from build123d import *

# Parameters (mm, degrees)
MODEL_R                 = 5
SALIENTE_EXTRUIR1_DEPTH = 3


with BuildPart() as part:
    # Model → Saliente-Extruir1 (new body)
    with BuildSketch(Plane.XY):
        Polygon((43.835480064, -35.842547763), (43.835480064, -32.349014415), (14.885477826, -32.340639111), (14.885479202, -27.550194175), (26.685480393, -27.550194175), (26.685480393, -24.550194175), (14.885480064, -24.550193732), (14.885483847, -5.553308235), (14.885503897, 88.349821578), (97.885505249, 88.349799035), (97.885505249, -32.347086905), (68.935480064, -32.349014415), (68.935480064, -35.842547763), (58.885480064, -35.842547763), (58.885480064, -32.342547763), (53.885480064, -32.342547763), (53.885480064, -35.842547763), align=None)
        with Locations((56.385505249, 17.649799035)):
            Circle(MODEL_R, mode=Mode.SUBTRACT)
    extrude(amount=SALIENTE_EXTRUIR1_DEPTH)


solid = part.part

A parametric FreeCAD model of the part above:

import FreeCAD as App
import Part
import Sketcher
from FreeCAD import Vector
Q = App.Units.Quantity

doc = App.newDocument("Part")
params = doc.addObject("Spreadsheet::Sheet", "Params")
for row, (alias, value) in enumerate([
    ("sketch1_diameter", "10 mm"),
    ("sketch1_width", "5 mm"),
    ("sketch1_height", "3 mm"),
    ("sketch1_length", "83.000001 mm"),
    ("sketch1_width2", "11.8 mm"),
    ("pad1_length", "3 mm"),
], start=1):
    params.set(f"A{row}", alias)
    params.set(f"B{row}", "=" + value)
    params.setAlias(f"B{row}", alias)

body = doc.addObject("PartDesign::Body", "Body")

sketch1 = doc.addObject("Sketcher::SketchObject", "Sketch")
body.addObject(sketch1)
sketch1.AttachmentSupport = (doc.XY_Plane, [""])
sketch1.MapMode = "FlatFace"
sketch1.addGeometry(Part.LineSegment(Vector(43.8, -32.3, 0), Vector(43.8, -35.8, 0)), False)
sketch1.addGeometry(Part.LineSegment(Vector(43.8, -35.8, 0), Vector(53.9, -35.8, 0)), False)
sketch1.addGeometry(Part.LineSegment(Vector(53.9, -35.8, 0), Vector(53.9, -32.3, 0)), False)
sketch1.addGeometry(Part.LineSegment(Vector(53.9, -32.3, 0), Vector(58.9, -32.3, 0)), False)
sketch1.addGeometry(Part.LineSegment(Vector(58.9, -32.3, 0), Vector(58.9, -35.8, 0)), False)
sketch1.addGeometry(Part.LineSegment(Vector(58.9, -35.8, 0), Vector(68.9, -35.8, 0)), False)
sketch1.addGeometry(Part.LineSegment(Vector(68.9, -35.8, 0), Vector(68.9, -32.3, 0)), False)
sketch1.addGeometry(Part.LineSegment(Vector(68.9, -32.3, 0), Vector(97.9, -32.3, 0)), False)
sketch1.addGeometry(Part.LineSegment(Vector(97.9, -32.3, 0), Vector(97.9, 88.3, 0)), False)
sketch1.addGeometry(Part.LineSegment(Vector(97.9, 88.3, 0), Vector(14.9, 88.3, 0)), False)
sketch1.addGeometry(Part.LineSegment(Vector(14.9, 88.3, 0), Vector(14.9, -5.6, 0)), False)
sketch1.addGeometry(Part.LineSegment(Vector(14.9, -5.6, 0), Vector(14.9, -24.6, 0)), False)
sketch1.addGeometry(Part.LineSegment(Vector(14.9, -24.6, 0), Vector(26.7, -24.6, 0)), False)
sketch1.addGeometry(Part.LineSegment(Vector(26.7, -24.6, 0), Vector(26.7, -27.6, 0)), False)
sketch1.addGeometry(Part.LineSegment(Vector(26.7, -27.6, 0), Vector(14.9, -27.6, 0)), False)
sketch1.addGeometry(Part.LineSegment(Vector(14.9, -27.6, 0), Vector(14.9, -32.3, 0)), False)
sketch1.addGeometry(Part.LineSegment(Vector(14.9, -32.3, 0), Vector(43.8, -32.3, 0)), False)
sketch1.addGeometry(Part.Circle(Vector(56.4, 17.6, 0), Vector(0, 0, 1), 5), False)
sketch1.addConstraint(Sketcher.Constraint("Coincident", 0, 2, 1, 1))
sketch1.addConstraint(Sketcher.Constraint("Coincident", 1, 2, 2, 1))
sketch1.addConstraint(Sketcher.Constraint("Coincident", 2, 2, 3, 1))
sketch1.addConstraint(Sketcher.Constraint("Coincident", 3, 2, 4, 1))
sketch1.addConstraint(Sketcher.Constraint("Coincident", 4, 2, 5, 1))
sketch1.addConstraint(Sketcher.Constraint("Coincident", 5, 2, 6, 1))
sketch1.addConstraint(Sketcher.Constraint("Coincident", 6, 2, 7, 1))
sketch1.addConstraint(Sketcher.Constraint("Coincident", 7, 2, 8, 1))
sketch1.addConstraint(Sketcher.Constraint("Coincident", 8, 2, 9, 1))
sketch1.addConstraint(Sketcher.Constraint("Coincident", 9, 2, 10, 1))
sketch1.addConstraint(Sketcher.Constraint("Coincident", 10, 2, 11, 1))
sketch1.addConstraint(Sketcher.Constraint("Coincident", 11, 2, 12, 1))
sketch1.addConstraint(Sketcher.Constraint("Coincident", 12, 2, 13, 1))
sketch1.addConstraint(Sketcher.Constraint("Coincident", 13, 2, 14, 1))
sketch1.addConstraint(Sketcher.Constraint("Coincident", 14, 2, 15, 1))
sketch1.addConstraint(Sketcher.Constraint("Coincident", 15, 2, 16, 1))
sketch1.addConstraint(Sketcher.Constraint("Coincident", 16, 2, 0, 1))
sketch1.addConstraint(Sketcher.Constraint("Vertical", 0))
sketch1.addConstraint(Sketcher.Constraint("Horizontal", 1))
sketch1.addConstraint(Sketcher.Constraint("Vertical", 2))
sketch1.addConstraint(Sketcher.Constraint("Horizontal", 3))
sketch1.addConstraint(Sketcher.Constraint("Vertical", 4))
sketch1.addConstraint(Sketcher.Constraint("Horizontal", 5))
sketch1.addConstraint(Sketcher.Constraint("Vertical", 6))
sketch1.addConstraint(Sketcher.Constraint("Vertical", 8))
sketch1.addConstraint(Sketcher.Constraint("Horizontal", 12))
sketch1.addConstraint(Sketcher.Constraint("Vertical", 13))
sketch1.addConstraint(Sketcher.Constraint("Horizontal", 14))
sketch1.addConstraint(Sketcher.Constraint("Vertical", 15))
sketch1.addConstraint(Sketcher.Constraint("Perpendicular", 9, 10))
sketch1.addConstraint(Sketcher.Constraint("Parallel", 10, 11))
sketch1.addConstraint(Sketcher.Constraint("Horizontal", 1, 2, 4, 2))
sketch1.addConstraint(Sketcher.Constraint("Horizontal", 6, 2, 16, 2))
sketch1.addConstraint(Sketcher.Constraint("Vertical", 11, 2, 14, 2))
sketch1.addConstraint(Sketcher.Constraint("Equal", 1, 5))
sketch1.addConstraint(Sketcher.Constraint("Diameter", 17, Q("10 mm")))
sketch1.addConstraint(Sketcher.Constraint("DistanceX", 3, 1, 3, 2, Q("5 mm")))
sketch1.addConstraint(Sketcher.Constraint("DistanceY", 13, 2, 13, 1, Q("3 mm")))
sketch1.addConstraint(Sketcher.Constraint("Angle", 9, Q("179.999984 deg")))
sketch1.addConstraint(Sketcher.Constraint("Distance", 9, Q("83.000001 mm")))
sketch1.addConstraint(Sketcher.Constraint("DistanceX", 12, 1, 12, 2, Q("11.8 mm")))
sketch1.addConstraint(Sketcher.Constraint("DistanceY", 2, 1, 2, 2, Q("3.5 mm")))
sketch1.addConstraint(Sketcher.Constraint("DistanceX", 11, 2, 2, 2, Q("39 mm")))
sketch1.addConstraint(Sketcher.Constraint("DistanceX", 1, 1, 1, 2, Q("10.05 mm")))
sketch1.addConstraint(Sketcher.Constraint("DistanceX", 17, 3, 8, 2, Q("41.5 mm")))
sketch1.addConstraint(Sketcher.Constraint("DistanceY", 17, 3, 8, 2, Q("70.7 mm")))
sketch1.addConstraint(Sketcher.Constraint("DistanceY", -1, 1, 17, 3, Q("17.649799 mm")))
sketch1.addConstraint(Sketcher.Constraint("Distance", 10, Q("93.90313 mm")))
sketch1.addConstraint(Sketcher.Constraint("DistanceY", 0, 2, 0, 1, Q("3.493533 mm")))
sketch1.addConstraint(Sketcher.Constraint("DistanceY", 8, 1, 8, 2, Q("120.696886 mm")))
sketch1.addConstraint(Sketcher.Constraint("DistanceY", 15, 2, 15, 1, Q("4.790445 mm")))
sketch1.addConstraint(Sketcher.Constraint("DistanceX", -1, 1, 0, 2, Q("43.83548 mm")))
sketch1.addConstraint(Sketcher.Constraint("DistanceY", 15, 2, -1, 1, Q("32.340639 mm")))
sketch1.addConstraint(Sketcher.Constraint("DistanceY", 5, 2, 7, 2, Q("3.495461 mm")))
sketch1.setExpression("Constraints[35]", "Params.sketch1_diameter")
sketch1.setExpression("Constraints[36]", "Params.sketch1_width")
sketch1.setExpression("Constraints[37]", "Params.sketch1_height")
sketch1.setExpression("Constraints[39]", "Params.sketch1_length")
sketch1.setExpression("Constraints[40]", "Params.sketch1_width2")
pad1 = doc.addObject("PartDesign::Pad", "Pad")
body.addObject(pad1)
pad1.Profile = sketch1
pad1.setExpression("Length", "Params.pad1_length")

doc.recompute()
